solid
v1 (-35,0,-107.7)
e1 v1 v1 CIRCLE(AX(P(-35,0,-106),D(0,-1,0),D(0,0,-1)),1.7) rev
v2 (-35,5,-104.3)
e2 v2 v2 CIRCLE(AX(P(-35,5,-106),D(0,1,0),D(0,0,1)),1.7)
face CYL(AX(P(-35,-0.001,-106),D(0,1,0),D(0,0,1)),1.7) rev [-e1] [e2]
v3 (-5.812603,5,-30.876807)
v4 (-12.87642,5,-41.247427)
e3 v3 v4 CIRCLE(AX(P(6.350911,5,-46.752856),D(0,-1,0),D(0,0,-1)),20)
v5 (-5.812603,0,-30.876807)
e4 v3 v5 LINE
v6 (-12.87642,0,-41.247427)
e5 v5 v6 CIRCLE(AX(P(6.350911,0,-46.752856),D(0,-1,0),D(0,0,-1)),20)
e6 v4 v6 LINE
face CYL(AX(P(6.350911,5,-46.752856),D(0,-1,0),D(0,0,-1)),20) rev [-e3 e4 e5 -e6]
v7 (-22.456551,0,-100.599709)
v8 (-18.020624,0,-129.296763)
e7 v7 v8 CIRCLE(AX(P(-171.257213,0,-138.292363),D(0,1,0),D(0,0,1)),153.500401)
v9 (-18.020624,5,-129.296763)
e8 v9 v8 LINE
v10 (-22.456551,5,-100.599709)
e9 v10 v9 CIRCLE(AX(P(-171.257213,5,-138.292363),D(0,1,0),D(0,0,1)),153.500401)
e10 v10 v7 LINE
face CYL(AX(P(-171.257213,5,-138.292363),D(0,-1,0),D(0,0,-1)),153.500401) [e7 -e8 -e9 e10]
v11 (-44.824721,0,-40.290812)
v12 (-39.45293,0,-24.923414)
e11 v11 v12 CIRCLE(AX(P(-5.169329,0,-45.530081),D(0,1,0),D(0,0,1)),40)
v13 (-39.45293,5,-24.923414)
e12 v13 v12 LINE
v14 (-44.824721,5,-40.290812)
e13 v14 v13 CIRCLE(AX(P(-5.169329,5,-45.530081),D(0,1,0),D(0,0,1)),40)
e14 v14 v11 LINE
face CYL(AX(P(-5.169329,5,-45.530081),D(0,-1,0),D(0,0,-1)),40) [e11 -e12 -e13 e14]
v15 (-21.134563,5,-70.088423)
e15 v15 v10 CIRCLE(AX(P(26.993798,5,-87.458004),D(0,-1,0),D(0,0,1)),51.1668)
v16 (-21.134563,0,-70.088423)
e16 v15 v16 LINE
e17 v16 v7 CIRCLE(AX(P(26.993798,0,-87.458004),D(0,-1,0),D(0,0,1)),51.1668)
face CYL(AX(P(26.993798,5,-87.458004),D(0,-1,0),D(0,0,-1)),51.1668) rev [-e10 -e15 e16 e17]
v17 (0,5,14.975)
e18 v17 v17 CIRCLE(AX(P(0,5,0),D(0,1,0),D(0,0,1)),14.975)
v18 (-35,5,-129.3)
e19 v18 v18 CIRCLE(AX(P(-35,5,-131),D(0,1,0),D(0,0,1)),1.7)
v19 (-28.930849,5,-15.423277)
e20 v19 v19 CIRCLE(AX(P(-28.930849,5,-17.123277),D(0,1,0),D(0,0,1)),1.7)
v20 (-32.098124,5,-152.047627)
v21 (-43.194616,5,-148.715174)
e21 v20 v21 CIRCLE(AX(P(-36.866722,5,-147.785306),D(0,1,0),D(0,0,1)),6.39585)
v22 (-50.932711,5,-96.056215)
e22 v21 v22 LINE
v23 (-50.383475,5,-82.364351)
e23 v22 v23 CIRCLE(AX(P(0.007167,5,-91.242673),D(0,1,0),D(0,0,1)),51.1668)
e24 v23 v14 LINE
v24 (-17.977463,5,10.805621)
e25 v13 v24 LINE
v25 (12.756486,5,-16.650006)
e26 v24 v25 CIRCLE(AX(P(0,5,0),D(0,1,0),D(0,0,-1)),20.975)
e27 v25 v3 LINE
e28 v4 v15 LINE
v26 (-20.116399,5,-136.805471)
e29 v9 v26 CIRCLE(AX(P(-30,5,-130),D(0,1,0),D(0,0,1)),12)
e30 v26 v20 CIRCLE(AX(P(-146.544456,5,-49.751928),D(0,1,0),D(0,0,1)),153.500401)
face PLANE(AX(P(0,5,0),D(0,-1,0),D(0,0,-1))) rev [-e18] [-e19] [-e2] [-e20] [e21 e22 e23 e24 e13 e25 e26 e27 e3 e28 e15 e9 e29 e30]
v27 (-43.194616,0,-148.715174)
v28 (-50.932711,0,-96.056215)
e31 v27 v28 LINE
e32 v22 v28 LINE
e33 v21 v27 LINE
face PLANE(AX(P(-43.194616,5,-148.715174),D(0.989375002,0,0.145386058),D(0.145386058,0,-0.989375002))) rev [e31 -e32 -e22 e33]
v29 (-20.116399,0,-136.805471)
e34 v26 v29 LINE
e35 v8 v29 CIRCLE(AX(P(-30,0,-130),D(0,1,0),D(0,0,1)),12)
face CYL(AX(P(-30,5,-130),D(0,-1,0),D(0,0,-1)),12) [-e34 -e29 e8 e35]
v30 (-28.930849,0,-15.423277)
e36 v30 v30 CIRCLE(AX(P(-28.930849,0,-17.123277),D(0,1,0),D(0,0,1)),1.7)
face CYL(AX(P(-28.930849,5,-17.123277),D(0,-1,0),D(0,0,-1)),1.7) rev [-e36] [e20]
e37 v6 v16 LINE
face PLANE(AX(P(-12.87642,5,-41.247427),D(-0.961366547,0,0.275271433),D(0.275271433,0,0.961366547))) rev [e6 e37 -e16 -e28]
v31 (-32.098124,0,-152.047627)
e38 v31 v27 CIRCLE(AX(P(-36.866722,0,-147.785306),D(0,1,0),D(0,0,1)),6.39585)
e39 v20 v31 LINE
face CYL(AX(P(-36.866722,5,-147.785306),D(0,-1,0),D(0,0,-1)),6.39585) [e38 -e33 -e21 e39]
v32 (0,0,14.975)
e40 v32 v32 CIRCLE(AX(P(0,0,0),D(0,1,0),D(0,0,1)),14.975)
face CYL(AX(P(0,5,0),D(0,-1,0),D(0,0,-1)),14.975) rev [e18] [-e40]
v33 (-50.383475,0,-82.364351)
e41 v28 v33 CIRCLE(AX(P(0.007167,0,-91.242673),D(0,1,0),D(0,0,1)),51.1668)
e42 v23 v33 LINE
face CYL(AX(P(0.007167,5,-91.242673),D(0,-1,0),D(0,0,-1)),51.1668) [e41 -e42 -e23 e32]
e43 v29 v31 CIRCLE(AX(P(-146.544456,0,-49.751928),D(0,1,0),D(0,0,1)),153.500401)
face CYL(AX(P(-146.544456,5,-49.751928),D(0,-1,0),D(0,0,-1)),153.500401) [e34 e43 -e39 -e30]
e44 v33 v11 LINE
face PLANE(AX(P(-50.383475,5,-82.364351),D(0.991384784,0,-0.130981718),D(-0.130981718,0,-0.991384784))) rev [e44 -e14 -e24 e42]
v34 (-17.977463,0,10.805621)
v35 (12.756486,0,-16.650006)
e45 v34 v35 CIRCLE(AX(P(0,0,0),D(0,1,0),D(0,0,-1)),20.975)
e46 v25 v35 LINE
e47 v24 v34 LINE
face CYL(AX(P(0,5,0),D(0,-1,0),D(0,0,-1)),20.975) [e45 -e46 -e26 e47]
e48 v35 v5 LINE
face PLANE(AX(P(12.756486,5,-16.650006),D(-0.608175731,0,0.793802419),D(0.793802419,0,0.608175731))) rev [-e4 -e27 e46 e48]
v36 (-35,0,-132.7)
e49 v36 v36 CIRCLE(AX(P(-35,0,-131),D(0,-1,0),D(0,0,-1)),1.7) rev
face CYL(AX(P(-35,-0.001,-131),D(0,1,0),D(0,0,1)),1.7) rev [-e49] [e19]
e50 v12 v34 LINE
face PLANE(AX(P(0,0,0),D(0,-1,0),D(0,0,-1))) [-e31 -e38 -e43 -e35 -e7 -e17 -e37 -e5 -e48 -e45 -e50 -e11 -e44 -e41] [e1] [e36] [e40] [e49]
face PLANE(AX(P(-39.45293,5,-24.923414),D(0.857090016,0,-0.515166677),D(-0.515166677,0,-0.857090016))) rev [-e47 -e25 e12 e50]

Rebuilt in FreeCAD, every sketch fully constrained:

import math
import FreeCAD as App
import Part
import Sketcher
Q = App.Units.Quantity

doc = App.newDocument("Part")
body = doc.addObject("PartDesign::Body", "Body")

sketch1 = body.newObject("Sketcher::SketchObject", "Sketch")
sketch1.AttachmentSupport = (doc.getObject("XZ_Plane"), [""])
sketch1.MapMode = "FlatFace"
sketch1.addGeometry([
    Part.LineSegment(App.Vector(12.756486, -16.650006, 0), App.Vector(-5.812603, -30.876807, 0)),
    Part.ArcOfCircle(Part.Circle(App.Vector(6.350911, -46.752856, 0), App.Vector(0, 0, 1), 20), math.radians(127.457713), math.radians(164.02181)),
    Part.LineSegment(App.Vector(-12.87642, -41.247427, 0), App.Vector(-21.134563, -70.088423, 0)),
    Part.ArcOfCircle(Part.Circle(App.Vector(26.993798, -87.458004, 0), App.Vector(0, 0, 1), 51.1668), math.radians(160.155428), math.radians(194.882669)),
    Part.ArcOfCircle(Part.Circle(App.Vector(-171.257212, -138.292363, 0), App.Vector(0, 0, 1), 153.500401), math.radians(3.359636), math.radians(14.214582)),
    Part.ArcOfCircle(Part.Circle(App.Vector(-30, -130, 0), App.Vector(0, 0, 1), 12), math.radians(-34.549817), math.radians(3.359636)),
    Part.ArcOfCircle(Part.Circle(App.Vector(-146.544456, -49.751928, 0), App.Vector(0, 0, 1), 153.500401), math.radians(-41.791338), math.radians(-34.549817)),
    Part.ArcOfCircle(Part.Circle(App.Vector(-36.866722, -147.785306, 0), App.Vector(0, 0, 1), 6.39585), math.radians(-171.640364), math.radians(-41.791338)),
    Part.LineSegment(App.Vector(-43.194616, -148.715174, 0), App.Vector(-50.932711, -96.056215, 0)),
    Part.ArcOfCircle(Part.Circle(App.Vector(0.007167, -91.242673, 0), App.Vector(0, 0, 1), 51.1668), math.radians(170.007618), math.radians(185.398111)),
    Part.LineSegment(App.Vector(-50.383475, -82.364351, 0), App.Vector(-44.824721, -40.290812, 0)),
    Part.ArcOfCircle(Part.Circle(App.Vector(-5.169329, -45.530081, 0), App.Vector(0, 0, 1), 40), math.radians(148.991403), math.radians(172.473674)),
    Part.LineSegment(App.Vector(-39.45293, -24.923414, 0), App.Vector(-17.977463, 10.805621, 0)),
    Part.ArcOfCircle(Part.Circle(App.Vector(0, 0, 0), App.Vector(0, 0, 1), 20.975), math.radians(-52.542287), math.radians(148.991403)),
    Part.Circle(App.Vector(0, 0, 0), App.Vector(0, 0, 1), 14.975),
    Part.Circle(App.Vector(-28.930849, -17.123277, 0), App.Vector(0, 0, 1), 1.7),
], False)
sketch1.addConstraint([
    Sketcher.Constraint("Coincident", 0, 2, 1, 1),
    Sketcher.Constraint("Coincident", 1, 2, 2, 1),
    Sketcher.Constraint("Coincident", 2, 2, 3, 1),
    Sketcher.Constraint("Coincident", 3, 2, 4, 2),
    Sketcher.Constraint("Coincident", 4, 1, 5, 2),
    Sketcher.Constraint("Coincident", 5, 1, 6, 2),
    Sketcher.Constraint("Coincident", 6, 1, 7, 2),
    Sketcher.Constraint("Coincident", 7, 1, 8, 1),
    Sketcher.Constraint("Coincident", 8, 2, 9, 2),
    Sketcher.Constraint("Coincident", 9, 1, 10, 1),
    Sketcher.Constraint("Coincident", 10, 2, 11, 2),
    Sketcher.Constraint("Coincident", 11, 1, 12, 1),
    Sketcher.Constraint("Coincident", 12, 2, 13, 2),
    Sketcher.Constraint("Coincident", 13, 1, 0, 1),
    Sketcher.Constraint("Coincident", 13, 3, -1, 1),
    Sketcher.Constraint("Coincident", 14, 3, -1, 1),
    Sketcher.Constraint("Radius", 1, Q("20 mm")),
    Sketcher.Constraint("Radius", 5, Q("12 mm")),
    Sketcher.Constraint("Radius", 11, Q("40 mm")),
    Sketcher.Constraint("Diameter", 15, Q("3.4 mm")),
    Sketcher.Constraint("Diameter", 14, Q("29.95 mm")),
    Sketcher.Constraint("Distance", 2, Q("30 mm")),
    Sketcher.Constraint("DistanceX", 5, 3, -1, 1, Q("30 mm")),
    Sketcher.Constraint("DistanceY", 5, 3, -1, 1, Q("130 mm")),
    Sketcher.Constraint("Radius", 13, Q("20.975 mm")),
    Sketcher.Constraint("Radius", 3, Q("51.1668 mm")),
    Sketcher.Constraint("Radius", 4, Q("153.500401 mm")),
    Sketcher.Constraint("Radius", 6, Q("153.500401 mm")),
    Sketcher.Constraint("Radius", 9, Q("51.1668 mm")),
    Sketcher.Constraint("Radius", 7, Q("6.39585 mm")),
    Sketcher.Constraint("DistanceX", -1, 1, 3, 3, Q("26.993798 mm")),
    Sketcher.Constraint("DistanceX", 5, 1, -1, 1, Q("20.116399 mm")),
    Sketcher.Constraint("DistanceX", 6, 1, 4, 1, Q("14.077501 mm")),
    Sketcher.Constraint("DistanceX", 10, 2, 1, 2, Q("31.948301 mm")),
    Sketcher.Constraint("DistanceY", 10, 2, 11, 1, Q("15.367398 mm")),
    Sketcher.Constraint("DistanceX", 11, 1, 11, 3, Q("34.283601 mm")),
    Sketcher.Constraint("DistanceY", 0, 2, 13, 1, Q("14.226802 mm")),
    Sketcher.Constraint("Distance", 8, Q("53.224469 mm")),
    Sketcher.Constraint("Distance", 10, Q("42.439161 mm")),
    Sketcher.Constraint("DistanceX", -1, 1, 1, 3, Q("6.350911 mm")),
    Sketcher.Constraint("DistanceX", 7, 3, -1, 1, Q("36.866722 mm")),
    Sketcher.Constraint("DistanceX", 11, 3, -1, 1, Q("5.169329 mm")),
    Sketcher.Constraint("DistanceY", 11, 3, -1, 1, Q("45.530081 mm")),
    Sketcher.Constraint("DistanceX", 15, 3, -1, 1, Q("28.930849 mm")),
    Sketcher.Constraint("DistanceX", 3, 2, -1, 1, Q("22.456551 mm")),
    Sketcher.Constraint("DistanceY", 3, 2, -1, 1, Q("100.599709 mm")),
    Sketcher.Constraint("DistanceX", 8, 2, -1, 1, Q("50.932711 mm")),
    Sketcher.Constraint("DistanceY", -1, 1, 12, 2, Q("10.805621 mm")),
    Sketcher.Constraint("DistanceY", 3, 3, 1, 3, Q("40.705149 mm")),
    Sketcher.Constraint("DistanceY", 6, 3, 1, 3, Q("2.999072 mm")),
    Sketcher.Constraint("DistanceX", 9, 3, 3, 3, Q("26.986631 mm")),
    Sketcher.Constraint("DistanceY", 9, 3, 3, 3, Q("3.784669 mm")),
    Sketcher.Constraint("DistanceY", 1, 3, 15, 3, Q("29.629579 mm")),
    Sketcher.Constraint("DistanceY", 1, 3, 0, 2, Q("15.876048 mm")),
    Sketcher.Constraint("DistanceX", 4, 1, 9, 3, Q("18.027791 mm")),
])
pad1 = body.newObject("PartDesign::Pad", "Pad")
pad1.Profile = sketch1
pad1.Length = 5
pad1.Reversed = True

sketch2 = body.newObject("Sketcher::SketchObject", "Sketch001")
sketch2.AttachmentSupport = (doc.getObject("XZ_Plane"), [""])
sketch2.MapMode = "FlatFace"
sketch2.AttachmentOffset = App.Placement(App.Vector(0, 0, -5), App.Rotation())
sketch2.addGeometry(Part.Circle(App.Vector(-35, -131, 0), App.Vector(0, 0, 1), 1.7), False)
sketch2.addConstraint([
    Sketcher.Constraint("Diameter", 0, Q("3.4 mm")),
    Sketcher.Constraint("DistanceX", 0, 3, -1, 1, Q("35 mm")),
    Sketcher.Constraint("DistanceY", 0, 3, -1, 1, Q("131 mm")),
])
pocket1 = body.newObject("PartDesign::Pocket", "Pocket")
pocket1.Profile = sketch2
pocket1.Type = "UpToFirst"
pocket1.Reversed = True

sketch3 = body.newObject("Sketcher::SketchObject", "Sketch002")
sketch3.AttachmentSupport = (doc.getObject("XZ_Plane"), [""])
sketch3.MapMode = "FlatFace"
sketch3.AttachmentOffset = App.Placement(App.Vector(0, 0, -5), App.Rotation())
sketch3.addGeometry(Part.Circle(App.Vector(-35, -106, 0), App.Vector(0, 0, 1), 1.7), False)
sketch3.addConstraint([
    Sketcher.Constraint("Diameter", 0, Q("3.4 mm")),
    Sketcher.Constraint("DistanceX", 0, 3, -1, 1, Q("35 mm")),
    Sketcher.Constraint("DistanceY", 0, 3, -1, 1, Q("106 mm")),
])
pocket2 = body.newObject("PartDesign::Pocket", "Pocket001")
pocket2.Profile = sketch3
pocket2.Type = "UpToFirst"
pocket2.Reversed = True

doc.recompute()
